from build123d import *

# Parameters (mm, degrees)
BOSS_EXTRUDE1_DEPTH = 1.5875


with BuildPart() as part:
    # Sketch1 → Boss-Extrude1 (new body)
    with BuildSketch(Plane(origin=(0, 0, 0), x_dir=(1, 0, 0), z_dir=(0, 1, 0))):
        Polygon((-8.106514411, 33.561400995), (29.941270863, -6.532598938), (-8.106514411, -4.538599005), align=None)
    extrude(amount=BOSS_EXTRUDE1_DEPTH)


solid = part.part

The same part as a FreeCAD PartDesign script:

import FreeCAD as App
import Part
import Sketcher
Q = App.Units.Quantity

doc = App.newDocument("Part")
body = doc.addObject("PartDesign::Body", "Body")

# Sketch on XZ plane
sketch1 = body.newObject("Sketcher::SketchObject", "Sketch")
sketch1.AttachmentSupport = (doc.getObject("XZ_Plane"), [""])
sketch1.MapMode = "FlatFace"
sketch1.addGeometry(Part.LineSegment(App.Vector(30, 7, 0), App.Vector(-8, -34, 0)), False)
sketch1.addGeometry(Part.LineSegment(App.Vector(-8, -34, 0), App.Vector(-8, 5, 0)), False)
sketch1.addGeometry(Part.LineSegment(App.Vector(-8, 5, 0), App.Vector(30, 7, 0)), False)
sketch1.addConstraint(Sketcher.Constraint("Coincident", 0, 2, 1, 1))
sketch1.addConstraint(Sketcher.Constraint("Coincident", 1, 2, 2, 1))
sketch1.addConstraint(Sketcher.Constraint("Coincident", 2, 2, 0, 1))
sketch1.addConstraint(Sketcher.Constraint("Vertical", 1))
sketch1.addConstraint(Sketcher.Constraint("DistanceY", 1, 1, 1, 2, Q("1.5 in")))
sketch1.addConstraint(Sketcher.Constraint("Angle", 2, Q("3 deg")))
sketch1.addConstraint(Sketcher.Constraint("Distance", 2, Q("1.5 in")))
sketch1.addConstraint(Sketcher.Constraint("DistanceY", 0, 2, -1, 1, Q("33.561401 mm")))
sketch1.addConstraint(Sketcher.Constraint("DistanceX", -1, 1, 2, 2, Q("29.941271 mm")))
pad1 = body.newObject("PartDesign::Pad", "Pad")
pad1.Profile = sketch1
pad1.Length = Q("0.0625 in")
pad1.Reversed = True

doc.recompute()
